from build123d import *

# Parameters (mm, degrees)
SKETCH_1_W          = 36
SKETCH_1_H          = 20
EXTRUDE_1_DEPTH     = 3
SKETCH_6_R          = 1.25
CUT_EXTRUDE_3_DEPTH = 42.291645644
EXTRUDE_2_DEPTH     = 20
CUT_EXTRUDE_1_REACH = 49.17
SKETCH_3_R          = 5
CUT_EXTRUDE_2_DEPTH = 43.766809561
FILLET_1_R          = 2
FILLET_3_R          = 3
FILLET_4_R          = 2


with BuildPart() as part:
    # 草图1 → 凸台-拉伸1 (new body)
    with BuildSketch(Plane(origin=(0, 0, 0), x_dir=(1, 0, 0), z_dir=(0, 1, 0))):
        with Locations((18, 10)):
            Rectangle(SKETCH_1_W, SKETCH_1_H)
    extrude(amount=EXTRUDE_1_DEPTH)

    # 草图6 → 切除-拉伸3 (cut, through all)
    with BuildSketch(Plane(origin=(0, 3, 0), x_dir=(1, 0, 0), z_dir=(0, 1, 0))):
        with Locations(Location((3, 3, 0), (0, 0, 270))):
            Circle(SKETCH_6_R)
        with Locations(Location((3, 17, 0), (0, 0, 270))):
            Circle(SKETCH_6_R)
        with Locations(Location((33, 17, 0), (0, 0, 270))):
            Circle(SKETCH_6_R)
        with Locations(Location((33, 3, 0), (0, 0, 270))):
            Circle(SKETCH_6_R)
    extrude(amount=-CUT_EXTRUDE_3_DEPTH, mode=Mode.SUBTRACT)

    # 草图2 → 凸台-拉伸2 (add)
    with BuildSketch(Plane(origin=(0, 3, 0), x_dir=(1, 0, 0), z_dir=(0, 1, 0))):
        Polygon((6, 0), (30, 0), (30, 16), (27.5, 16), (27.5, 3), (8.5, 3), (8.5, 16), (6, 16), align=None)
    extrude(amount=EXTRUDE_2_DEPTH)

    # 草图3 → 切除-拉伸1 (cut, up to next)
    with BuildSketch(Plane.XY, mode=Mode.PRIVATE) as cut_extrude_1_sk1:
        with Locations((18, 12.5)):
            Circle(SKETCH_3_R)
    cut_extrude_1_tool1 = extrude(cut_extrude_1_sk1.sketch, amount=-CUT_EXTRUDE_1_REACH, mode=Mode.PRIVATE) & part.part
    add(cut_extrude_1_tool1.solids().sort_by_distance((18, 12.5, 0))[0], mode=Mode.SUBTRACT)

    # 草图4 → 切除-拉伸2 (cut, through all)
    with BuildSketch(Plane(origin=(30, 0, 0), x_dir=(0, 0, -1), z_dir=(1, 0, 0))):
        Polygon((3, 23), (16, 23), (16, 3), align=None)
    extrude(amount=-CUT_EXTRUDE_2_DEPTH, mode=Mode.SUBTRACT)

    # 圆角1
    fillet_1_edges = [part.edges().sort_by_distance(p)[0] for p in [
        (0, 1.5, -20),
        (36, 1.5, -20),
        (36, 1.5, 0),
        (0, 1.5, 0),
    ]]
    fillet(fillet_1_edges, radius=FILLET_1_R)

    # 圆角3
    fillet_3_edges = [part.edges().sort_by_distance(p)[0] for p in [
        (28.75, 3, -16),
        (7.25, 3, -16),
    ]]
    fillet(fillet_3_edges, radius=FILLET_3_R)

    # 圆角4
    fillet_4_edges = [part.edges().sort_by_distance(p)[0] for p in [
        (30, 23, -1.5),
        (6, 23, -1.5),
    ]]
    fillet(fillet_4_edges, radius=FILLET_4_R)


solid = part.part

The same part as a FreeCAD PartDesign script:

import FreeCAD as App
import Part
import Sketcher

V = App.Vector


def edges_at(feature, points):
    """Names of the edges that pass closest to the given points."""
    edges = feature.Shape.Edges
    near = lambda p: min(range(len(edges)), key=lambda i: edges[i].distToShape(Part.Vertex(*p))[0])
    return sorted({f"Edge{near(p) + 1}" for p in points})

doc = App.newDocument("Part")
body = doc.addObject("PartDesign::Body", "Body")

# Sketch on XZ plane
sketch1 = body.newObject("Sketcher::SketchObject", "Sketch")
sketch1.AttachmentSupport = (doc.getObject("XZ_Plane"), [""])
sketch1.MapMode = "FlatFace"
sketch1.addGeometry([
    Part.LineSegment(V(0, -20, 0), V(0, 0, 0)),
    Part.LineSegment(V(0, 0, 0), V(36, 0, 0)),
    Part.LineSegment(V(36, 0, 0), V(36, -20, 0)),
    Part.LineSegment(V(36, -20, 0), V(0, -20, 0)),
], False)
sketch1.addConstraint([
    Sketcher.Constraint("Coincident", 0, 2, 1, 1),
    Sketcher.Constraint("Coincident", 1, 2, 2, 1),
    Sketcher.Constraint("Coincident", 2, 2, 3, 1),
    Sketcher.Constraint("Coincident", 3, 2, 0, 1),
    Sketcher.Constraint("Vertical", 0),
    Sketcher.Constraint("Horizontal", 1),
    Sketcher.Constraint("Vertical", 2),
    Sketcher.Constraint("Horizontal", 3),
    Sketcher.Constraint("Coincident", 0, 2, -1, 1),
    Sketcher.Constraint("DistanceX", 1, 1, 1, 2, 36.0),
    Sketcher.Constraint("DistanceY", 0, 1, 0, 2, 20.0),
])
pad1 = body.newObject("PartDesign::Pad", "Pad")
pad1.Profile = sketch1
pad1.Length = 3
pad1.Reversed = True

# Sketch on XZ plane
sketch2 = body.newObject("Sketcher::SketchObject", "Sketch001")
sketch2.AttachmentSupport = (doc.getObject("XZ_Plane"), [""])
sketch2.MapMode = "FlatFace"
sketch2.AttachmentOffset = App.Placement(V(0, 0, -3), App.Rotation())
sketch2.addGeometry([
    Part.Circle(V(3, -3, 0), V(0, 0, 1), 1.2),
    Part.Circle(V(3, -17, 0), V(0, 0, 1), 1.2),
    Part.Circle(V(33, -17, 0), V(0, 0, 1), 1.2),
    Part.Circle(V(33, -3, 0), V(0, 0, 1), 1.2),
], False)
sketch2.addConstraint([
    Sketcher.Constraint("Equal", 0, 1),
    Sketcher.Constraint("Equal", 1, 2),
    Sketcher.Constraint("Equal", 2, 3),
    Sketcher.Constraint("Horizontal", 1, 3, 2, 3),
    Sketcher.Constraint("Horizontal", 0, 3, 3, 3),
    Sketcher.Constraint("Vertical", 0, 3, 1, 3),
    Sketcher.Constraint("Vertical", 2, 3, 3, 3),
    Sketcher.Constraint("Diameter", 0, 2.5),
    Sketcher.Constraint("DistanceX", -1, 1, 0, 3, 3.0),
    Sketcher.Constraint("DistanceY", 0, 3, -1, 1, 3.0),
    Sketcher.Constraint("DistanceY", 1, 3, -1, 1, 17.0),
    Sketcher.Constraint("DistanceX", -1, 1, 2, 3, 33.0),
])
pocket1 = body.newObject("PartDesign::Pocket", "Pocket")
pocket1.Profile = sketch2
pocket1.Type = "ThroughAll"
pocket1.Reversed = True

# Sketch on XZ plane
sketch3 = body.newObject("Sketcher::SketchObject", "Sketch002")
sketch3.AttachmentSupport = (doc.getObject("XZ_Plane"), [""])
sketch3.MapMode = "FlatFace"
sketch3.AttachmentOffset = App.Placement(V(0, 0, -3), App.Rotation())
sketch3.addGeometry([
    Part.LineSegment(V(6, 0, 0), V(30, 0, 0)),  # 0
    Part.LineSegment(V(30, 0, 0), V(30, -16, 0)),  # 1
    Part.LineSegment(V(30, -16, 0), V(27.5, -16, 0)),  # 2
    Part.LineSegment(V(27.5, -16, 0), V(27.5, -3, 0)),  # 3
    Part.LineSegment(V(27.5, -3, 0), V(8.5, -3, 0)),  # 4
    Part.LineSegment(V(8.5, -3, 0), V(8.5, -16, 0)),  # 5
    Part.LineSegment(V(8.5, -16, 0), V(6, -16, 0)),  # 6
    Part.LineSegment(V(6, -16, 0), V(6, 0, 0)),  # 7
], False)
sketch3.addConstraint([
    Sketcher.Constraint("Coincident", 0, 2, 1, 1),
    Sketcher.Constraint("Coincident", 1, 2, 2, 1),
    Sketcher.Constraint("Coincident", 2, 2, 3, 1),
    Sketcher.Constraint("Coincident", 3, 2, 4, 1),
    Sketcher.Constraint("Coincident", 4, 2, 5, 1),
    Sketcher.Constraint("Coincident", 5, 2, 6, 1),
    Sketcher.Constraint("Coincident", 6, 2, 7, 1),
    Sketcher.Constraint("Coincident", 7, 2, 0, 1),
    Sketcher.Constraint("Horizontal", 0),
    Sketcher.Constraint("Vertical", 1),
    Sketcher.Constraint("Horizontal", 2),
    Sketcher.Constraint("Vertical", 3),
    Sketcher.Constraint("Horizontal", 4),
    Sketcher.Constraint("Vertical", 5),
    Sketcher.Constraint("Horizontal", 6),
    Sketcher.Constraint("Vertical", 7),
    Sketcher.Constraint("PointOnObject", 0, 2, -1),
    Sketcher.Constraint("Horizontal", 2, 2, 5, 2),
    Sketcher.Constraint("Equal", 2, 6),
    Sketcher.Constraint("DistanceX", 0, 1, 0, 2, 24.0),
    Sketcher.Constraint("DistanceX", 4, 2, 4, 1, 19.0),
    Sketcher.Constraint("DistanceY", 1, 2, 1, 1, 16.0),
    Sketcher.Constraint("DistanceY", 3, 1, 3, 2, 13.0),
    Sketcher.Constraint("DistanceX", -1, 1, 0, 2, 30.0),
])
pad2 = body.newObject("PartDesign::Pad", "Pad001")
pad2.Profile = sketch3
pad2.Length = 20
pad2.Reversed = True

# Sketch on XY plane
sketch4 = body.newObject("Sketcher::SketchObject", "Sketch003")
sketch4.AttachmentSupport = (doc.getObject("XY_Plane"), [""])
sketch4.MapMode = "FlatFace"
sketch4.addGeometry(Part.Circle(V(18, 12, 0), V(0, 0, 1), 5), False)
sketch4.addConstraint([
    Sketcher.Constraint("Diameter", 0, 10.0),
    Sketcher.Constraint("DistanceX", -1, 1, 0, 3, 18.0),
    Sketcher.Constraint("DistanceY", -1, 1, 0, 3, 12.5),
])
pocket2 = body.newObject("PartDesign::Pocket", "Pocket001")
pocket2.Profile = sketch4
pocket2.Type = "UpToFirst"

# Sketch on YZ plane
sketch5 = body.newObject("Sketcher::SketchObject", "Sketch004")
sketch5.AttachmentSupport = (doc.getObject("YZ_Plane"), [""])
sketch5.MapMode = "FlatFace"
sketch5.AttachmentOffset = App.Placement(V(0, 0, 30), App.Rotation())
sketch5.addGeometry([
    Part.LineSegment(V(23, -16, 0), V(23, -3, 0)),
    Part.LineSegment(V(23, -3, 0), V(3, -16, 0)),
    Part.LineSegment(V(3, -16, 0), V(23, -16, 0)),
], False)
sketch5.addConstraint([
    Sketcher.Constraint("Coincident", 0, 2, 1, 1),
    Sketcher.Constraint("Coincident", 1, 2, 2, 1),
    Sketcher.Constraint("Coincident", 2, 2, 0, 1),
    Sketcher.Constraint("Vertical", 0),
    Sketcher.Constraint("Horizontal", 2),
    Sketcher.Constraint("DistanceX", 2, 1, 2, 2, 20.0),
    Sketcher.Constraint("DistanceY", 0, 1, 0, 2, 13.0),
    Sketcher.Constraint("DistanceX", -1, 1, 0, 2, 23.0),
    Sketcher.Constraint("DistanceY", 0, 2, -1, 1, 3.0),
])
pocket3 = body.newObject("PartDesign::Pocket", "Pocket002")
pocket3.Profile = sketch5
pocket3.Type = "ThroughAll"
doc.recompute()

fillet = body.newObject("PartDesign::Fillet", "Fillet")
fillet.Base = (pocket3, edges_at(pocket3, [
    (0, 1.5, -20),
    (36, 1.5, -20),
    (36, 1.5, 0),
    (0, 1.5, 0),
]))
fillet.Radius = 2
doc.recompute()

fillet2 = body.newObject("PartDesign::Fillet", "Fillet001")
fillet2.Base = (fillet, edges_at(fillet, [(28.75, 3, -16), (7.25, 3, -16)]))
fillet2.Radius = 3
doc.recompute()

fillet3 = body.newObject("PartDesign::Fillet", "Fillet002")
fillet3.Base = (fillet2, edges_at(fillet2, [(30, 23, -1.5), (6, 23, -1.5)]))
fillet3.Radius = 2

doc.recompute()
